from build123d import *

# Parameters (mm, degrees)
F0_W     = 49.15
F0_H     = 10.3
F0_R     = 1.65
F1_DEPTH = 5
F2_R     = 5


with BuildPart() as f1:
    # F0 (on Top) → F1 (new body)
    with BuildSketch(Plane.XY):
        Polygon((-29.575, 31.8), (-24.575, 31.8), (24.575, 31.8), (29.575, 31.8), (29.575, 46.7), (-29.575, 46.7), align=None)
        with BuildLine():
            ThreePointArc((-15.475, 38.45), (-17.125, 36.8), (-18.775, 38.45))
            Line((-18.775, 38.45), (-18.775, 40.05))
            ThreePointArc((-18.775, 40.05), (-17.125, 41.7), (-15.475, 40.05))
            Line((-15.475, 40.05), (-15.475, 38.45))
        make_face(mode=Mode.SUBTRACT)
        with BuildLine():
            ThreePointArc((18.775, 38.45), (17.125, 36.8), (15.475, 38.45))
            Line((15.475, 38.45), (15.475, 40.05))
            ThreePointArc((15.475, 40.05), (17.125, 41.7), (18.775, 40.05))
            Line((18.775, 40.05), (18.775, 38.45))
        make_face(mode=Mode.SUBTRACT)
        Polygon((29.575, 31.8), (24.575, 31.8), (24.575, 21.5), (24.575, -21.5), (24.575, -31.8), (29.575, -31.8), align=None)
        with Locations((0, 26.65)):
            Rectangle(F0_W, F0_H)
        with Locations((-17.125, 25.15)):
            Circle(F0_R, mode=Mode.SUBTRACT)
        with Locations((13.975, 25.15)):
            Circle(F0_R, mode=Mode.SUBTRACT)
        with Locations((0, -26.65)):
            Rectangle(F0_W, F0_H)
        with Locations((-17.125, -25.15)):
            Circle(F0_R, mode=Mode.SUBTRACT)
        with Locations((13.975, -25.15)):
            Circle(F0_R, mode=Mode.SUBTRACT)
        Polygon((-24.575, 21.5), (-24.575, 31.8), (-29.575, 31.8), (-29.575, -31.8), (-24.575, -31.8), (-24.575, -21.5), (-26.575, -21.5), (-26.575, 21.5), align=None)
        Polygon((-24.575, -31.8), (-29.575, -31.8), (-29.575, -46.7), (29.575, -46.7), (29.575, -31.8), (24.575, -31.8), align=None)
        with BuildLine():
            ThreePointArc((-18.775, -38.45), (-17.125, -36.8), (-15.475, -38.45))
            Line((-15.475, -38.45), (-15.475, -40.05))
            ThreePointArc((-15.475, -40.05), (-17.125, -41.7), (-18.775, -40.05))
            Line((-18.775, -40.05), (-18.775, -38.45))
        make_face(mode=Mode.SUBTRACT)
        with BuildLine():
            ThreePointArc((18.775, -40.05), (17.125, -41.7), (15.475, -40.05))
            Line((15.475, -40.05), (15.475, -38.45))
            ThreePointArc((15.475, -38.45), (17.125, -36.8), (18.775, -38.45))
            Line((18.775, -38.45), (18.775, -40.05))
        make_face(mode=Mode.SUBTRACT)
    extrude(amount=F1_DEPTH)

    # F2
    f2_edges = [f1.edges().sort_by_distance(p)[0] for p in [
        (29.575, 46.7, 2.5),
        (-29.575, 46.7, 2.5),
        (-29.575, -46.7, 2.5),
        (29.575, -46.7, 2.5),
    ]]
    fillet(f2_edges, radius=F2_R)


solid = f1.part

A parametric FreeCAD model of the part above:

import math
import FreeCAD as App
import Part
import Sketcher

V = App.Vector
Q = App.Units.Quantity


def edges_at(feature, points):
    """Names of the edges that pass closest to the given points."""
    edges = feature.Shape.Edges
    near = lambda p: min(range(len(edges)), key=lambda i: edges[i].distToShape(Part.Vertex(*p))[0])
    return sorted({f"Edge{near(p) + 1}" for p in points})

doc = App.newDocument("Part")
params = doc.addObject("Spreadsheet::Sheet", "Params")
for row, (alias, value) in enumerate([
    ("sketch1_diameter", "3.3 mm"),
    ("sketch1_height", "43 mm"),
    ("sketch1_height2", "93.4 mm"),
    ("sketch1_height3", "1.6 mm"),
    ("sketch1_width", "59.15 mm"),
    ("pad1_length", "5 mm"),
    ("fillet_radius", "5 mm"),
], start=1):
    params.set(f"A{row}", alias)
    params.set(f"B{row}", "=" + value)
    params.setAlias(f"B{row}", alias)

body = doc.addObject("PartDesign::Body", "Body")

# Sketch on XY plane
sketch1 = body.newObject("Sketcher::SketchObject", "Sketch")
sketch1.AttachmentSupport = (doc.getObject("XY_Plane"), [""])
sketch1.MapMode = "FlatFace"
sketch1.addGeometry([
    Part.LineSegment(V(-29.6, 46.7, 0), V(-29.6, -46.7, 0)),  # 0
    Part.LineSegment(V(-29.6, -46.7, 0), V(29.6, -46.7, 0)),  # 1
    Part.LineSegment(V(29.6, -46.7, 0), V(29.6, 46.7, 0)),  # 2
    Part.LineSegment(V(29.6, 46.7, 0), V(-29.6, 46.7, 0)),  # 3
    Part.LineSegment(V(-18.8, -40, 0), V(-18.8, -38.5, 0)),  # 4
    Part.ArcOfCircle(Part.Circle(V(-17.1, -38.5, 0), V(0, 0, 1), 1.6), math.radians(0), math.radians(180)),  # 5
    Part.LineSegment(V(-15.5, -38.5, 0), V(-15.5, -40, 0)),  # 6
    Part.ArcOfCircle(Part.Circle(V(-17.1, -40, 0), V(0, 0, 1), 1.6), math.radians(180), math.radians(360)),  # 7
    Part.Circle(V(-17.1, -25.1, 0), V(0, 0, 1), 1.6),  # 8
    Part.LineSegment(V(18.8, -38.5, 0), V(18.8, -40, 0)),  # 9
    Part.ArcOfCircle(Part.Circle(V(17.1, -40, 0), V(0, 0, 1), 1.6), math.radians(180), math.radians(360)),  # 10
    Part.LineSegment(V(15.5, -40, 0), V(15.5, -38.5, 0)),  # 11
    Part.ArcOfCircle(Part.Circle(V(17.1, -38.5, 0), V(0, 0, 1), 1.6), math.radians(0), math.radians(180)),  # 12
    Part.Circle(V(14, -25.1, 0), V(0, 0, 1), 1.6),  # 13
    Part.Circle(V(-17.1, 25.1, 0), V(0, 0, 1), 1.6),  # 14
    Part.LineSegment(V(-15.5, 40, 0), V(-15.5, 38.5, 0)),  # 15
    Part.ArcOfCircle(Part.Circle(V(-17.1, 38.5, 0), V(0, 0, 1), 1.6), math.radians(180), math.radians(360)),  # 16
    Part.LineSegment(V(-18.8, 38.5, 0), V(-18.8, 40, 0)),  # 17
    Part.ArcOfCircle(Part.Circle(V(-17.1, 40, 0), V(0, 0, 1), 1.6), math.radians(0), math.radians(180)),  # 18
    Part.LineSegment(V(24.6, 21.5, 0), V(24.6, -21.5, 0)),  # 19
    Part.LineSegment(V(24.6, -21.5, 0), V(-26.6, -21.5, 0)),  # 20
    Part.LineSegment(V(-26.6, -21.5, 0), V(-26.6, 21.5, 0)),  # 21
    Part.LineSegment(V(-26.6, 21.5, 0), V(24.6, 21.5, 0)),  # 22
    Part.Circle(V(14, 25.1, 0), V(0, 0, 1), 1.6),  # 23
    Part.LineSegment(V(18.8, 40, 0), V(18.8, 38.5, 0)),  # 24
    Part.ArcOfCircle(Part.Circle(V(17.1, 38.5, 0), V(0, 0, 1), 1.6), math.radians(180), math.radians(360)),  # 25
    Part.LineSegment(V(15.5, 38.5, 0), V(15.5, 40, 0)),  # 26
    Part.ArcOfCircle(Part.Circle(V(17.1, 40, 0), V(0, 0, 1), 1.6), math.radians(0), math.radians(180)),  # 27
], False)
sketch1.addConstraint([
    Sketcher.Constraint("Coincident", 0, 2, 1, 1),
    Sketcher.Constraint("Coincident", 1, 2, 2, 1),
    Sketcher.Constraint("Coincident", 2, 2, 3, 1),
    Sketcher.Constraint("Coincident", 3, 2, 0, 1),
    Sketcher.Constraint("Tangent", 4, 2, 5, 2),
    Sketcher.Constraint("Tangent", 5, 1, 6, 1),
    Sketcher.Constraint("Tangent", 6, 2, 7, 2),
    Sketcher.Constraint("Tangent", 7, 1, 4, 1),
    Sketcher.Constraint("Tangent", 9, 2, 10, 2),
    Sketcher.Constraint("Tangent", 10, 1, 11, 1),
    Sketcher.Constraint("Tangent", 11, 2, 12, 2),
    Sketcher.Constraint("Tangent", 12, 1, 9, 1),
    Sketcher.Constraint("Tangent", 15, 2, 16, 2),
    Sketcher.Constraint("Tangent", 16, 1, 17, 1),
    Sketcher.Constraint("Tangent", 17, 2, 18, 2),
    Sketcher.Constraint("Tangent", 18, 1, 15, 1),
    Sketcher.Constraint("Coincident", 19, 2, 20, 1),
    Sketcher.Constraint("Coincident", 20, 2, 21, 1),
    Sketcher.Constraint("Coincident", 21, 2, 22, 1),
    Sketcher.Constraint("Coincident", 22, 2, 19, 1),
    Sketcher.Constraint("Tangent", 24, 2, 25, 2),
    Sketcher.Constraint("Tangent", 25, 1, 26, 1),
    Sketcher.Constraint("Tangent", 26, 2, 27, 2),
    Sketcher.Constraint("Tangent", 27, 1, 24, 1),
    Sketcher.Constraint("Vertical", 0),
    Sketcher.Constraint("Horizontal", 1),
    Sketcher.Constraint("Vertical", 2),
    Sketcher.Constraint("Horizontal", 3),
    Sketcher.Constraint("Vertical", 4),
    Sketcher.Constraint("Vertical", 6),
    Sketcher.Constraint("Vertical", 9),
    Sketcher.Constraint("Vertical", 11),
    Sketcher.Constraint("Vertical", 15),
    Sketcher.Constraint("Vertical", 17),
    Sketcher.Constraint("Vertical", 19),
    Sketcher.Constraint("Horizontal", 20),
    Sketcher.Constraint("Vertical", 21),
    Sketcher.Constraint("Horizontal", 22),
    Sketcher.Constraint("Vertical", 24),
    Sketcher.Constraint("Vertical", 26),
    Sketcher.Constraint("Equal", 7, 8),
    Sketcher.Constraint("Equal", 8, 10),
    Sketcher.Constraint("Equal", 12, 13),
    Sketcher.Constraint("Equal", 13, 14),
    Sketcher.Constraint("Equal", 14, 16),
    Sketcher.Constraint("Equal", 18, 23),
    Sketcher.Constraint("Equal", 23, 25),
    Sketcher.Constraint("Symmetric", 12, 3, 16, 3, -1, 1),
    Sketcher.Constraint("Symmetric", 5, 3, 25, 3, -1, 1),
    Sketcher.Constraint("Symmetric", 0, 2, 2, 2, -1, 1),
    Sketcher.Constraint("Symmetric", 7, 3, 10, 3, -2),
    Sketcher.Constraint("Symmetric", 8, 3, 14, 3, -1),
    Sketcher.Constraint("Symmetric", 13, 3, 23, 3, -1),
    Sketcher.Constraint("Horizontal", 5, 3, 12, 3),
    Sketcher.Constraint("Horizontal", 8, 3, 13, 3),
    Sketcher.Constraint("Horizontal", 18, 3, 27, 3),
    Sketcher.Constraint("Vertical", 7, 3, 8, 3),
    Sketcher.Constraint("Equal", 11, 15),
    Sketcher.Constraint("Diameter", 8, Q("3.3 mm")),
    Sketcher.Constraint("DistanceY", 19, 2, 19, 1, Q("43 mm")),
    Sketcher.Constraint("DistanceY", 0, 2, 0, 1, Q("93.4 mm")),
    Sketcher.Constraint("DistanceY", 4, 1, 4, 2, Q("1.6 mm")),
    Sketcher.Constraint("DistanceX", 22, 2, 2, 2, Q("5 mm")),
    Sketcher.Constraint("DistanceX", 1, 1, 1, 2, Q("59.15 mm")),
    Sketcher.Constraint("DistanceX", 20, 2, 20, 1, Q("51.15 mm")),
    Sketcher.Constraint("DistanceY", 19, 2, -1, 1, Q("21.5 mm")),
    Sketcher.Constraint("DistanceY", 5, 3, 8, 3, Q("13.3 mm")),
    Sketcher.Constraint("DistanceX", 8, 3, 13, 3, Q("31.1 mm")),
    Sketcher.Constraint("DistanceY", 8, 3, 14, 3, Q("50.3 mm")),
    Sketcher.Constraint("DistanceX", 0, 2, 10, 3, Q("46.7 mm")),
])
sketch1.setExpression("Constraints[58]", "Params.sketch1_diameter")
sketch1.setExpression("Constraints[59]", "Params.sketch1_height")
sketch1.setExpression("Constraints[60]", "Params.sketch1_height2")
sketch1.setExpression("Constraints[61]", "Params.sketch1_height3")
sketch1.setExpression("Constraints[63]", "Params.sketch1_width")
pad1 = body.newObject("PartDesign::Pad", "Pad")
pad1.Profile = sketch1
pad1.setExpression("Length", "Params.pad1_length")
doc.recompute()

fillet = body.newObject("PartDesign::Fillet", "Fillet")
fillet.Base = (pad1, edges_at(pad1, [
    (29.575, 46.7, 2.5),
    (-29.575, 46.7, 2.5),
    (-29.575, -46.7, 2.5),
    (29.575, -46.7, 2.5),
]))
fillet.setExpression("Radius", "Params.fillet_radius")

doc.recompute()
